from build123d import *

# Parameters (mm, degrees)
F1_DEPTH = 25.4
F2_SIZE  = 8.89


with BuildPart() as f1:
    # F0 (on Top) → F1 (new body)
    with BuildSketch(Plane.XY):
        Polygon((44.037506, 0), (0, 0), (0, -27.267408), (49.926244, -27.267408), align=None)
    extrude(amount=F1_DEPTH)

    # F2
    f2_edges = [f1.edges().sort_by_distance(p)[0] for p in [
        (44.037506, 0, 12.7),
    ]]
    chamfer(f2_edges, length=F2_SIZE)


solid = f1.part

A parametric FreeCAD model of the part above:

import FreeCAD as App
import Part
import Sketcher
from FreeCAD import Vector
Q = App.Units.Quantity


def edges_at(feature, points):
    """Names of the edges that pass closest to the given points."""
    edges = feature.Shape.Edges
    near = lambda p: min(range(len(edges)), key=lambda i: edges[i].distToShape(Part.Vertex(*p))[0])
    return sorted({f"Edge{near(p) + 1}" for p in points})

doc = App.newDocument("Part")
body = doc.addObject("PartDesign::Body", "Body")

sketch1 = body.newObject("Sketcher::SketchObject", "Sketch")
sketch1.AttachmentSupport = (doc.getObject("XY_Plane"), [""])
sketch1.MapMode = "FlatFace"
sketch1.addGeometry([
    Part.LineSegment(Vector(44, 0, 0), Vector(0, 0, 0)),
    Part.LineSegment(Vector(0, 0, 0), Vector(0, -27, 0)),
    Part.LineSegment(Vector(0, -27, 0), Vector(50, -27, 0)),
    Part.LineSegment(Vector(50, -27, 0), Vector(44, 0, 0)),
], False)
sketch1.addConstraint([
    Sketcher.Constraint("Coincident", 0, 2, 1, 1),
    Sketcher.Constraint("Coincident", 1, 2, 2, 1),
    Sketcher.Constraint("Coincident", 2, 2, 3, 1),
    Sketcher.Constraint("Coincident", 3, 2, 0, 1),
    Sketcher.Constraint("Horizontal", 0),
    Sketcher.Constraint("Vertical", 1),
    Sketcher.Constraint("Horizontal", 2),
    Sketcher.Constraint("Coincident", 0, 2, -1, 1),
    Sketcher.Constraint("DistanceX", 2, 1, 2, 2, Q("1.9656002 in")),
    Sketcher.Constraint("DistanceX", 0, 2, 0, 1, 44.037506),
    Sketcher.Constraint("DistanceY", 1, 2, 1, 1, 27.267408),
])
pad1 = body.newObject("PartDesign::Pad", "Pad")
pad1.Profile = sketch1
pad1.Length = Q("1 in")
doc.recompute()

chamfer = body.newObject("PartDesign::Chamfer", "Chamfer")
chamfer.Base = (pad1, edges_at(pad1, [(44.038, 0, 12.7)]))
chamfer.Size = Q("0.35 in")

doc.recompute()
